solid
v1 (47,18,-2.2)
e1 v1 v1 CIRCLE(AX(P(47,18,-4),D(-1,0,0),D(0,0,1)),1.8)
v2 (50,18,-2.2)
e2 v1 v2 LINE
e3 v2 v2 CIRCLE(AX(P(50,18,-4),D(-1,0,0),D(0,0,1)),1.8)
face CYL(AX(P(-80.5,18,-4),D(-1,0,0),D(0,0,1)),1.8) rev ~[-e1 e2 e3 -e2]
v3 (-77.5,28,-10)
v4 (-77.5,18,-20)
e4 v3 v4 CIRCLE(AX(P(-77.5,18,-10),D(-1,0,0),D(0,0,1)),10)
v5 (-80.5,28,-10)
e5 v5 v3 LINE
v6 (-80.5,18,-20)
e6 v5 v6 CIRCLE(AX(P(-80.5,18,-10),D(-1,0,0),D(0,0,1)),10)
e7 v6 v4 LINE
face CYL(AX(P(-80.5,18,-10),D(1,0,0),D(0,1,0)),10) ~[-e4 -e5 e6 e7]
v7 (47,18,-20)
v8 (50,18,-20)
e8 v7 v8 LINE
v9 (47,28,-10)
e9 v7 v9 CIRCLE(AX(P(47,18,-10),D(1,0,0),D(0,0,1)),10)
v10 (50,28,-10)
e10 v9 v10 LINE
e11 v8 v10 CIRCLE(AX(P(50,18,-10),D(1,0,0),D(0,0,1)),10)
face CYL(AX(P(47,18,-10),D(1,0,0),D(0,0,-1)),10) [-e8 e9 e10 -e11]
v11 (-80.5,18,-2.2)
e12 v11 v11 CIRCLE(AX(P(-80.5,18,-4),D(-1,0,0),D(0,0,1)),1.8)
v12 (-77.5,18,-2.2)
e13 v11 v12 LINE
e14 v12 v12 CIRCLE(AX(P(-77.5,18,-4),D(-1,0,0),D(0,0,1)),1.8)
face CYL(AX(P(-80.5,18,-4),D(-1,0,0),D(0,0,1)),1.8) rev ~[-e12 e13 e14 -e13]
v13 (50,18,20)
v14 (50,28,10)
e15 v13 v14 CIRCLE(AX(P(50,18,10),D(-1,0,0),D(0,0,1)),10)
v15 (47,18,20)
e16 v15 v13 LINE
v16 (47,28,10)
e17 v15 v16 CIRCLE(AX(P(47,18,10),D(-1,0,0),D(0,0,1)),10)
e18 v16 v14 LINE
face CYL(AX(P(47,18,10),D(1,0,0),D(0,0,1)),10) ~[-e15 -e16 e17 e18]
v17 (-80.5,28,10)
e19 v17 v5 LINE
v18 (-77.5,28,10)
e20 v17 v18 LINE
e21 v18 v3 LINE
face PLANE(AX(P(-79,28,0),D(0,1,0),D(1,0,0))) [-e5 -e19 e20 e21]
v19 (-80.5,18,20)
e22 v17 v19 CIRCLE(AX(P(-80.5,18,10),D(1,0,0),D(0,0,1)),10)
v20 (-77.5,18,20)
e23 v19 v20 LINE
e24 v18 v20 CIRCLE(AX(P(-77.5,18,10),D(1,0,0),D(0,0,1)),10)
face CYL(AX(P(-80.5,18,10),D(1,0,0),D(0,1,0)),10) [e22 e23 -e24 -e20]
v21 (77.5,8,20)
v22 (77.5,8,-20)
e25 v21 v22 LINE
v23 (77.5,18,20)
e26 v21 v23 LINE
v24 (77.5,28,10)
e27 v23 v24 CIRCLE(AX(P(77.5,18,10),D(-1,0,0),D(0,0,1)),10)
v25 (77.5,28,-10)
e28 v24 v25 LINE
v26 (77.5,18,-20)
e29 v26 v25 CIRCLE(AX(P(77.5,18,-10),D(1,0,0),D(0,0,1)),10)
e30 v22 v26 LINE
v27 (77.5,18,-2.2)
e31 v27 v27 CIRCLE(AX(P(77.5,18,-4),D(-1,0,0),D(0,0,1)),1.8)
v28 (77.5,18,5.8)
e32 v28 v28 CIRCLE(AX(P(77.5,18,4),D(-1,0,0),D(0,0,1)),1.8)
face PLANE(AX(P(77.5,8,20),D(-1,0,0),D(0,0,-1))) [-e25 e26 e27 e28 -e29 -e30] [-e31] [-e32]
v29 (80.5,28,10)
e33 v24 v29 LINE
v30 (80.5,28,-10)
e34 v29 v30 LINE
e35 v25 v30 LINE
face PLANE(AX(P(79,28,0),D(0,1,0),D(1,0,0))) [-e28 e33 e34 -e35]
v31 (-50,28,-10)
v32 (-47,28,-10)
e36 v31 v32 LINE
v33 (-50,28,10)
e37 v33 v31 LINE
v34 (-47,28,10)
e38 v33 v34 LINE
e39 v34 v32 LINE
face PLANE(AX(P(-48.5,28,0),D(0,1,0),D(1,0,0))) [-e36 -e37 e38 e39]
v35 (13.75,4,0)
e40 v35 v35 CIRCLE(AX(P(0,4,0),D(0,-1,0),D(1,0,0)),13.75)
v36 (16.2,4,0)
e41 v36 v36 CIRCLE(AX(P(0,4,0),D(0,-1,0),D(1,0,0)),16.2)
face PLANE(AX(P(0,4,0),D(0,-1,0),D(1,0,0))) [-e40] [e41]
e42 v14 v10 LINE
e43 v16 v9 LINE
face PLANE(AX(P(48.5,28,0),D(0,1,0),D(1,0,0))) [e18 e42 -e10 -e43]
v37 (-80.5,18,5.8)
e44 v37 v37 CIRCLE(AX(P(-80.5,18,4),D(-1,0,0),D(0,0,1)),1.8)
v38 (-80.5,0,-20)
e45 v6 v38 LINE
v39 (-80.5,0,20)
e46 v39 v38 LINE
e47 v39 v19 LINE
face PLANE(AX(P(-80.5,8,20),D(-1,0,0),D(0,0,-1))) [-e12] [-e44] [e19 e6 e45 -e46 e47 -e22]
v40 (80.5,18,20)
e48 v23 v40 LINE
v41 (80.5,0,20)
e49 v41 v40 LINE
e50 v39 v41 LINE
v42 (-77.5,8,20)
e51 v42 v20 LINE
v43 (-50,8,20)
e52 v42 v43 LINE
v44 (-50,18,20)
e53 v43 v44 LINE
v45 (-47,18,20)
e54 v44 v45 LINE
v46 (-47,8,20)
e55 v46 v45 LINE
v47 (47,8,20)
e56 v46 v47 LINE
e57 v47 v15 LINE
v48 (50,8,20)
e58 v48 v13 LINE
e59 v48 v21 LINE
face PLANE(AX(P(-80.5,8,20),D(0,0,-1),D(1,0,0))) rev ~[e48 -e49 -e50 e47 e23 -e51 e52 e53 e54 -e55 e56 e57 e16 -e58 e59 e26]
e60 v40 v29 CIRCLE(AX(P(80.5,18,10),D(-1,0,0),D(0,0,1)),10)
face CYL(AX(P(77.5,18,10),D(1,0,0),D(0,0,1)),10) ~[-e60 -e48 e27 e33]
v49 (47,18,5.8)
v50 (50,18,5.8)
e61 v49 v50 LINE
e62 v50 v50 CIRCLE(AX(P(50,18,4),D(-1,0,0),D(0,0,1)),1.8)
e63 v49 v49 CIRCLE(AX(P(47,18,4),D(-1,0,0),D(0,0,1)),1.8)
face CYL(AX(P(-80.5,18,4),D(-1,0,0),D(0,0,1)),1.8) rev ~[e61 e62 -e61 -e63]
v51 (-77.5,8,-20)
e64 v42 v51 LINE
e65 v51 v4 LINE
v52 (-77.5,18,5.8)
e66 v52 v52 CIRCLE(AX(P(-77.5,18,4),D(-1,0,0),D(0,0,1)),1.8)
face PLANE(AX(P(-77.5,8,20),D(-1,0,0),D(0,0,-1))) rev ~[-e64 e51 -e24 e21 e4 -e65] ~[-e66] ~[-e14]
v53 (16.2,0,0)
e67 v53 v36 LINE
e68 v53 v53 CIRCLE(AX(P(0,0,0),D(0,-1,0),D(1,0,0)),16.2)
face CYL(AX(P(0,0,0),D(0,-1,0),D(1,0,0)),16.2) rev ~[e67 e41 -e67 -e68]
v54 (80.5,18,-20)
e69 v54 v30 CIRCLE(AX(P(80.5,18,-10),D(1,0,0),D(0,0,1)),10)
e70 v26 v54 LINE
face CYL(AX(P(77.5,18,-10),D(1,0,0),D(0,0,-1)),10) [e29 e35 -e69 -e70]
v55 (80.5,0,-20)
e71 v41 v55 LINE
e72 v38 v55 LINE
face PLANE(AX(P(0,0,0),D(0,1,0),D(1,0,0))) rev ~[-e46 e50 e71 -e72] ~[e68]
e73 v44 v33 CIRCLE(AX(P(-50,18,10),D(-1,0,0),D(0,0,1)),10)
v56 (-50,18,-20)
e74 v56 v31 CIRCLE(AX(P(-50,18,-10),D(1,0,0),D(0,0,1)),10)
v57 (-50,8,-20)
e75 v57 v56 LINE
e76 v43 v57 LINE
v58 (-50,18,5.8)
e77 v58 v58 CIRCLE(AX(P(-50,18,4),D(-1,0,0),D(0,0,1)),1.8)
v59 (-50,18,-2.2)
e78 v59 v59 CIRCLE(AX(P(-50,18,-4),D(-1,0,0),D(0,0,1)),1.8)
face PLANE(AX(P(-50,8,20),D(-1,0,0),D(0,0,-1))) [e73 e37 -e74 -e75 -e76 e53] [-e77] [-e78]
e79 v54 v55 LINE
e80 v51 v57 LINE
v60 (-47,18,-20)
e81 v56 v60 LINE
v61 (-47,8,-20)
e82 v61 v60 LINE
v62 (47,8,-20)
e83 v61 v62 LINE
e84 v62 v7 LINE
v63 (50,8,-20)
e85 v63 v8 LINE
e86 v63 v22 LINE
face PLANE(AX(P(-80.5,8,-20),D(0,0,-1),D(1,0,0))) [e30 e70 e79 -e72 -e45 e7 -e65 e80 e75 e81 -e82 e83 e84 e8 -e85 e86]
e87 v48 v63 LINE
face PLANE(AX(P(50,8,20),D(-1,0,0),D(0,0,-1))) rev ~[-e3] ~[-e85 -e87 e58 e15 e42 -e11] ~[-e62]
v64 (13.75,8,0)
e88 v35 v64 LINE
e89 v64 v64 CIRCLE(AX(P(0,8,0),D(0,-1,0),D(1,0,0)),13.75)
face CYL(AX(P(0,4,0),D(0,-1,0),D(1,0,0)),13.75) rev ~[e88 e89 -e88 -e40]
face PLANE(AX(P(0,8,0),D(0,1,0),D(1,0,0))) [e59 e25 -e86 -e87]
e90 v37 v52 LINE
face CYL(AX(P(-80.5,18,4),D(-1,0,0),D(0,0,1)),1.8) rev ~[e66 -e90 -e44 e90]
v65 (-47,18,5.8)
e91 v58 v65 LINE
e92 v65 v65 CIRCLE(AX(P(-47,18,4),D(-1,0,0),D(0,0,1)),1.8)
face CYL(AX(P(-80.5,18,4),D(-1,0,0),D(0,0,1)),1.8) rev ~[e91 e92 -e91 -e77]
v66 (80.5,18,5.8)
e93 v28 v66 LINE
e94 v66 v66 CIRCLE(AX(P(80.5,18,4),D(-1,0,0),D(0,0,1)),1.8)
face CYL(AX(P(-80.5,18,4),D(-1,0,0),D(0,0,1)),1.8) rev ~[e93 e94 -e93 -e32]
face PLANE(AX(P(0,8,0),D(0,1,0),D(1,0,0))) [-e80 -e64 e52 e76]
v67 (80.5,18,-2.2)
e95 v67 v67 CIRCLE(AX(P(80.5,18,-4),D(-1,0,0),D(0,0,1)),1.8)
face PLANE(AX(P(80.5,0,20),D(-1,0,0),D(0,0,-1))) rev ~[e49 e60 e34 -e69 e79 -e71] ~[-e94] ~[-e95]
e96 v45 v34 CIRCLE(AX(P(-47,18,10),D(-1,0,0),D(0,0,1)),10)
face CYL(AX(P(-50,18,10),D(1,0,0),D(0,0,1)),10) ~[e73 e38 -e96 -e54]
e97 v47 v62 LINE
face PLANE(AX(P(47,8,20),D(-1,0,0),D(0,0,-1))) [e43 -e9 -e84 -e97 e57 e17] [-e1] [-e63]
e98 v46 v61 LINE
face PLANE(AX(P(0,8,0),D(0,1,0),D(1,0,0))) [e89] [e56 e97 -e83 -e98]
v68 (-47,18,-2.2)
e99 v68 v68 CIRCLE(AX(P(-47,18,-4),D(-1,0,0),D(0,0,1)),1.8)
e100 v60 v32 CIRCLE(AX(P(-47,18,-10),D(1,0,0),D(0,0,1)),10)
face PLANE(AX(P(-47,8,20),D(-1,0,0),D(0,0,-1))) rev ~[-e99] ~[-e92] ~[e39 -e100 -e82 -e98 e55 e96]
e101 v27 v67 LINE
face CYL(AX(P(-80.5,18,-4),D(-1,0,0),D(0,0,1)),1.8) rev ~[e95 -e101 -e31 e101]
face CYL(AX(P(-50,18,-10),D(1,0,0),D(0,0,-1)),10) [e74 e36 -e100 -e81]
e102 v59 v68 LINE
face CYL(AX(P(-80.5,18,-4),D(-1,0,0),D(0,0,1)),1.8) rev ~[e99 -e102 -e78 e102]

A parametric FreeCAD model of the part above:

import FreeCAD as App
import Part
import Sketcher
from FreeCAD import Vector


def edges_at(feature, points):
    """Names of the edges that pass closest to the given points."""
    edges = feature.Shape.Edges
    near = lambda p: min(range(len(edges)), key=lambda i: edges[i].distToShape(Part.Vertex(*p))[0])
    return sorted({f"Edge{near(p) + 1}" for p in points})


def add_polygon(sketch, points):
    """Adds a closed chain of lines whose ends are joined by coincident constraints."""
    first, n = sketch.GeometryCount, len(points)
    for a, b in zip(points, points[1:] + points[:1]):
        sketch.addGeometry(Part.LineSegment(App.Vector(*a, 0), App.Vector(*b, 0)), False)
    for i in range(n):
        sketch.addConstraint(Sketcher.Constraint("Coincident", first + i, 2, first + (i + 1) % n, 1))

doc = App.newDocument("Part")
body = doc.addObject("PartDesign::Body", "Body")

# Sketch on XZ plane
sketch1 = body.newObject("Sketcher::SketchObject", "Sketch")
sketch1.AttachmentSupport = (doc.getObject("XZ_Plane"), [""])
sketch1.MapMode = "FlatFace"
add_polygon(sketch1, [(-80.5, -20), (-80.5, 20), (80.5, 20), (80.5, -20)])  # lines 0-3
sketch1.addConstraint(Sketcher.Constraint("Vertical", 0))
sketch1.addConstraint(Sketcher.Constraint("Horizontal", 1))
sketch1.addConstraint(Sketcher.Constraint("Vertical", 2))
sketch1.addConstraint(Sketcher.Constraint("Horizontal", 3))
sketch1.addConstraint(Sketcher.Constraint("Symmetric", 0, 2, 2, 2, -1, 1))
sketch1.addConstraint(Sketcher.Constraint("DistanceX", 1, 1, 1, 2, 161.0))
sketch1.addConstraint(Sketcher.Constraint("DistanceY", 0, 1, 0, 2, 40.0))
pad1 = body.newObject("PartDesign::Pad", "Pad")
pad1.Profile = sketch1
pad1.Length = 8
pad1.Reversed = True

# Sketch on XZ plane
sketch2 = body.newObject("Sketcher::SketchObject", "Sketch001")
sketch2.AttachmentSupport = (doc.getObject("XZ_Plane"), [""])
sketch2.MapMode = "FlatFace"
sketch2.AttachmentOffset = App.Placement(Vector(0, 0, -8), App.Rotation())
add_polygon(sketch2, [(-50, -20), (-50, 20), (-47, 20), (-47, -20)])  # lines 0-3
add_polygon(sketch2, [(-80.5, -20), (-80.5, 20), (-77.5, 20), (-77.5, -20)])  # lines 4-7
add_polygon(sketch2, [(77.5, -20), (77.5, 20), (80.5, 20), (80.5, -20)])  # lines 8-11
add_polygon(sketch2, [(47, -20), (47, 20), (50, 20), (50, -20)])  # lines 12-15
sketch2.addConstraint(Sketcher.Constraint("Vertical", 0))
sketch2.addConstraint(Sketcher.Constraint("Horizontal", 1))
sketch2.addConstraint(Sketcher.Constraint("Vertical", 2))
sketch2.addConstraint(Sketcher.Constraint("Horizontal", 3))
sketch2.addConstraint(Sketcher.Constraint("Vertical", 4))
sketch2.addConstraint(Sketcher.Constraint("Horizontal", 5))
sketch2.addConstraint(Sketcher.Constraint("Vertical", 6))
sketch2.addConstraint(Sketcher.Constraint("Horizontal", 7))
sketch2.addConstraint(Sketcher.Constraint("Vertical", 8))
sketch2.addConstraint(Sketcher.Constraint("Horizontal", 9))
sketch2.addConstraint(Sketcher.Constraint("Vertical", 10))
sketch2.addConstraint(Sketcher.Constraint("Horizontal", 11))
sketch2.addConstraint(Sketcher.Constraint("Vertical", 12))
sketch2.addConstraint(Sketcher.Constraint("Horizontal", 13))
sketch2.addConstraint(Sketcher.Constraint("Vertical", 14))
sketch2.addConstraint(Sketcher.Constraint("Horizontal", 15))
sketch2.addConstraint(Sketcher.Constraint("Symmetric", 6, 2, 8, 2, -1, 1))
sketch2.addConstraint(Sketcher.Constraint("Symmetric", 4, 2, 10, 2, -1, 1))
sketch2.addConstraint(Sketcher.Constraint("Symmetric", 2, 2, 12, 2, -1, 1))
sketch2.addConstraint(Sketcher.Constraint("Symmetric", 0, 2, 14, 2, -1, 1))
sketch2.addConstraint(Sketcher.Constraint("Horizontal", 1, 2, 4, 2))
sketch2.addConstraint(Sketcher.Constraint("Horizontal", 3, 2, 6, 2))
sketch2.addConstraint(Sketcher.Constraint("Horizontal", 5, 2, 8, 2))
sketch2.addConstraint(Sketcher.Constraint("Equal", 3, 5))
sketch2.addConstraint(Sketcher.Constraint("DistanceX", 1, 1, 1, 2, 3.0))
sketch2.addConstraint(Sketcher.Constraint("DistanceY", 0, 1, 0, 2, 40.0))
sketch2.addConstraint(Sketcher.Constraint("DistanceX", 0, 2, -1, 1, 50.0))
sketch2.addConstraint(Sketcher.Constraint("DistanceX", 5, 2, 8, 2, 155.0))
pad2 = body.newObject("PartDesign::Pad", "Pad001")
pad2.Profile = sketch2
pad2.Length = 20
pad2.Reversed = True

# Sketch on XZ plane
sketch3 = body.newObject("Sketcher::SketchObject", "Sketch002")
sketch3.AttachmentSupport = (doc.getObject("XZ_Plane"), [""])
sketch3.MapMode = "FlatFace"
sketch3.addGeometry(Part.Circle(Vector(0, 0, 0), Vector(0, 0, 1), 16.2), False)
sketch3.addConstraint(Sketcher.Constraint("Coincident", 0, 3, -1, 1))
sketch3.addConstraint(Sketcher.Constraint("Diameter", 0, 32.4))
pocket1 = body.newObject("PartDesign::Pocket", "Pocket")
pocket1.Profile = sketch3
pocket1.Length = 4

# Sketch on YZ plane
sketch4 = body.newObject("Sketcher::SketchObject", "Sketch003")
sketch4.AttachmentSupport = (doc.getObject("YZ_Plane"), [""])
sketch4.MapMode = "FlatFace"
sketch4.AttachmentOffset = App.Placement(Vector(0, 0, -80.5), App.Rotation())
sketch4.addGeometry(Part.Circle(Vector(18, 4, 0), Vector(0, 0, 1), 1.8), False)
sketch4.addGeometry(Part.Circle(Vector(18, -4, 0), Vector(0, 0, 1), 1.8), False)
sketch4.addConstraint(Sketcher.Constraint("Equal", 0, 1))
sketch4.addConstraint(Sketcher.Constraint("Symmetric", 0, 3, 1, 3, -1))
sketch4.addConstraint(Sketcher.Constraint("Diameter", 0, 3.6))
sketch4.addConstraint(Sketcher.Constraint("DistanceX", -1, 1, 0, 3, 18.0))
sketch4.addConstraint(Sketcher.Constraint("DistanceY", -1, 1, 0, 3, 4.0))
pocket2 = body.newObject("PartDesign::Pocket", "Pocket001")
pocket2.Profile = sketch4
pocket2.Type = "ThroughAll"
pocket2.Midplane = True

# Sketch on XZ plane
sketch5 = body.newObject("Sketcher::SketchObject", "Sketch004")
sketch5.AttachmentSupport = (doc.getObject("XZ_Plane"), [""])
sketch5.MapMode = "FlatFace"
sketch5.AttachmentOffset = App.Placement(Vector(0, 0, -4), App.Rotation())
sketch5.addGeometry(Part.Circle(Vector(0, 0, 0), Vector(0, 0, 1), 13.75), False)
sketch5.addConstraint(Sketcher.Constraint("Coincident", 0, 3, -1, 1))
sketch5.addConstraint(Sketcher.Constraint("Diameter", 0, 27.5))
pocket3 = body.newObject("PartDesign::Pocket", "Pocket002")
pocket3.Profile = sketch5
pocket3.Type = "UpToFirst"
doc.recompute()

fillet = body.newObject("PartDesign::Fillet", "Fillet")
fillet.Base = (pocket3, edges_at(pocket3, [
    (-48.5, 28, 20),
    (-48.5, 28, -20),
    (-79, 28, 20),
    (-79, 28, -20),
    (79, 28, -20),
    (79, 28, 20),
    (48.5, 28, -20),
    (48.5, 28, 20),
]))
fillet.Radius = 10

doc.recompute()
